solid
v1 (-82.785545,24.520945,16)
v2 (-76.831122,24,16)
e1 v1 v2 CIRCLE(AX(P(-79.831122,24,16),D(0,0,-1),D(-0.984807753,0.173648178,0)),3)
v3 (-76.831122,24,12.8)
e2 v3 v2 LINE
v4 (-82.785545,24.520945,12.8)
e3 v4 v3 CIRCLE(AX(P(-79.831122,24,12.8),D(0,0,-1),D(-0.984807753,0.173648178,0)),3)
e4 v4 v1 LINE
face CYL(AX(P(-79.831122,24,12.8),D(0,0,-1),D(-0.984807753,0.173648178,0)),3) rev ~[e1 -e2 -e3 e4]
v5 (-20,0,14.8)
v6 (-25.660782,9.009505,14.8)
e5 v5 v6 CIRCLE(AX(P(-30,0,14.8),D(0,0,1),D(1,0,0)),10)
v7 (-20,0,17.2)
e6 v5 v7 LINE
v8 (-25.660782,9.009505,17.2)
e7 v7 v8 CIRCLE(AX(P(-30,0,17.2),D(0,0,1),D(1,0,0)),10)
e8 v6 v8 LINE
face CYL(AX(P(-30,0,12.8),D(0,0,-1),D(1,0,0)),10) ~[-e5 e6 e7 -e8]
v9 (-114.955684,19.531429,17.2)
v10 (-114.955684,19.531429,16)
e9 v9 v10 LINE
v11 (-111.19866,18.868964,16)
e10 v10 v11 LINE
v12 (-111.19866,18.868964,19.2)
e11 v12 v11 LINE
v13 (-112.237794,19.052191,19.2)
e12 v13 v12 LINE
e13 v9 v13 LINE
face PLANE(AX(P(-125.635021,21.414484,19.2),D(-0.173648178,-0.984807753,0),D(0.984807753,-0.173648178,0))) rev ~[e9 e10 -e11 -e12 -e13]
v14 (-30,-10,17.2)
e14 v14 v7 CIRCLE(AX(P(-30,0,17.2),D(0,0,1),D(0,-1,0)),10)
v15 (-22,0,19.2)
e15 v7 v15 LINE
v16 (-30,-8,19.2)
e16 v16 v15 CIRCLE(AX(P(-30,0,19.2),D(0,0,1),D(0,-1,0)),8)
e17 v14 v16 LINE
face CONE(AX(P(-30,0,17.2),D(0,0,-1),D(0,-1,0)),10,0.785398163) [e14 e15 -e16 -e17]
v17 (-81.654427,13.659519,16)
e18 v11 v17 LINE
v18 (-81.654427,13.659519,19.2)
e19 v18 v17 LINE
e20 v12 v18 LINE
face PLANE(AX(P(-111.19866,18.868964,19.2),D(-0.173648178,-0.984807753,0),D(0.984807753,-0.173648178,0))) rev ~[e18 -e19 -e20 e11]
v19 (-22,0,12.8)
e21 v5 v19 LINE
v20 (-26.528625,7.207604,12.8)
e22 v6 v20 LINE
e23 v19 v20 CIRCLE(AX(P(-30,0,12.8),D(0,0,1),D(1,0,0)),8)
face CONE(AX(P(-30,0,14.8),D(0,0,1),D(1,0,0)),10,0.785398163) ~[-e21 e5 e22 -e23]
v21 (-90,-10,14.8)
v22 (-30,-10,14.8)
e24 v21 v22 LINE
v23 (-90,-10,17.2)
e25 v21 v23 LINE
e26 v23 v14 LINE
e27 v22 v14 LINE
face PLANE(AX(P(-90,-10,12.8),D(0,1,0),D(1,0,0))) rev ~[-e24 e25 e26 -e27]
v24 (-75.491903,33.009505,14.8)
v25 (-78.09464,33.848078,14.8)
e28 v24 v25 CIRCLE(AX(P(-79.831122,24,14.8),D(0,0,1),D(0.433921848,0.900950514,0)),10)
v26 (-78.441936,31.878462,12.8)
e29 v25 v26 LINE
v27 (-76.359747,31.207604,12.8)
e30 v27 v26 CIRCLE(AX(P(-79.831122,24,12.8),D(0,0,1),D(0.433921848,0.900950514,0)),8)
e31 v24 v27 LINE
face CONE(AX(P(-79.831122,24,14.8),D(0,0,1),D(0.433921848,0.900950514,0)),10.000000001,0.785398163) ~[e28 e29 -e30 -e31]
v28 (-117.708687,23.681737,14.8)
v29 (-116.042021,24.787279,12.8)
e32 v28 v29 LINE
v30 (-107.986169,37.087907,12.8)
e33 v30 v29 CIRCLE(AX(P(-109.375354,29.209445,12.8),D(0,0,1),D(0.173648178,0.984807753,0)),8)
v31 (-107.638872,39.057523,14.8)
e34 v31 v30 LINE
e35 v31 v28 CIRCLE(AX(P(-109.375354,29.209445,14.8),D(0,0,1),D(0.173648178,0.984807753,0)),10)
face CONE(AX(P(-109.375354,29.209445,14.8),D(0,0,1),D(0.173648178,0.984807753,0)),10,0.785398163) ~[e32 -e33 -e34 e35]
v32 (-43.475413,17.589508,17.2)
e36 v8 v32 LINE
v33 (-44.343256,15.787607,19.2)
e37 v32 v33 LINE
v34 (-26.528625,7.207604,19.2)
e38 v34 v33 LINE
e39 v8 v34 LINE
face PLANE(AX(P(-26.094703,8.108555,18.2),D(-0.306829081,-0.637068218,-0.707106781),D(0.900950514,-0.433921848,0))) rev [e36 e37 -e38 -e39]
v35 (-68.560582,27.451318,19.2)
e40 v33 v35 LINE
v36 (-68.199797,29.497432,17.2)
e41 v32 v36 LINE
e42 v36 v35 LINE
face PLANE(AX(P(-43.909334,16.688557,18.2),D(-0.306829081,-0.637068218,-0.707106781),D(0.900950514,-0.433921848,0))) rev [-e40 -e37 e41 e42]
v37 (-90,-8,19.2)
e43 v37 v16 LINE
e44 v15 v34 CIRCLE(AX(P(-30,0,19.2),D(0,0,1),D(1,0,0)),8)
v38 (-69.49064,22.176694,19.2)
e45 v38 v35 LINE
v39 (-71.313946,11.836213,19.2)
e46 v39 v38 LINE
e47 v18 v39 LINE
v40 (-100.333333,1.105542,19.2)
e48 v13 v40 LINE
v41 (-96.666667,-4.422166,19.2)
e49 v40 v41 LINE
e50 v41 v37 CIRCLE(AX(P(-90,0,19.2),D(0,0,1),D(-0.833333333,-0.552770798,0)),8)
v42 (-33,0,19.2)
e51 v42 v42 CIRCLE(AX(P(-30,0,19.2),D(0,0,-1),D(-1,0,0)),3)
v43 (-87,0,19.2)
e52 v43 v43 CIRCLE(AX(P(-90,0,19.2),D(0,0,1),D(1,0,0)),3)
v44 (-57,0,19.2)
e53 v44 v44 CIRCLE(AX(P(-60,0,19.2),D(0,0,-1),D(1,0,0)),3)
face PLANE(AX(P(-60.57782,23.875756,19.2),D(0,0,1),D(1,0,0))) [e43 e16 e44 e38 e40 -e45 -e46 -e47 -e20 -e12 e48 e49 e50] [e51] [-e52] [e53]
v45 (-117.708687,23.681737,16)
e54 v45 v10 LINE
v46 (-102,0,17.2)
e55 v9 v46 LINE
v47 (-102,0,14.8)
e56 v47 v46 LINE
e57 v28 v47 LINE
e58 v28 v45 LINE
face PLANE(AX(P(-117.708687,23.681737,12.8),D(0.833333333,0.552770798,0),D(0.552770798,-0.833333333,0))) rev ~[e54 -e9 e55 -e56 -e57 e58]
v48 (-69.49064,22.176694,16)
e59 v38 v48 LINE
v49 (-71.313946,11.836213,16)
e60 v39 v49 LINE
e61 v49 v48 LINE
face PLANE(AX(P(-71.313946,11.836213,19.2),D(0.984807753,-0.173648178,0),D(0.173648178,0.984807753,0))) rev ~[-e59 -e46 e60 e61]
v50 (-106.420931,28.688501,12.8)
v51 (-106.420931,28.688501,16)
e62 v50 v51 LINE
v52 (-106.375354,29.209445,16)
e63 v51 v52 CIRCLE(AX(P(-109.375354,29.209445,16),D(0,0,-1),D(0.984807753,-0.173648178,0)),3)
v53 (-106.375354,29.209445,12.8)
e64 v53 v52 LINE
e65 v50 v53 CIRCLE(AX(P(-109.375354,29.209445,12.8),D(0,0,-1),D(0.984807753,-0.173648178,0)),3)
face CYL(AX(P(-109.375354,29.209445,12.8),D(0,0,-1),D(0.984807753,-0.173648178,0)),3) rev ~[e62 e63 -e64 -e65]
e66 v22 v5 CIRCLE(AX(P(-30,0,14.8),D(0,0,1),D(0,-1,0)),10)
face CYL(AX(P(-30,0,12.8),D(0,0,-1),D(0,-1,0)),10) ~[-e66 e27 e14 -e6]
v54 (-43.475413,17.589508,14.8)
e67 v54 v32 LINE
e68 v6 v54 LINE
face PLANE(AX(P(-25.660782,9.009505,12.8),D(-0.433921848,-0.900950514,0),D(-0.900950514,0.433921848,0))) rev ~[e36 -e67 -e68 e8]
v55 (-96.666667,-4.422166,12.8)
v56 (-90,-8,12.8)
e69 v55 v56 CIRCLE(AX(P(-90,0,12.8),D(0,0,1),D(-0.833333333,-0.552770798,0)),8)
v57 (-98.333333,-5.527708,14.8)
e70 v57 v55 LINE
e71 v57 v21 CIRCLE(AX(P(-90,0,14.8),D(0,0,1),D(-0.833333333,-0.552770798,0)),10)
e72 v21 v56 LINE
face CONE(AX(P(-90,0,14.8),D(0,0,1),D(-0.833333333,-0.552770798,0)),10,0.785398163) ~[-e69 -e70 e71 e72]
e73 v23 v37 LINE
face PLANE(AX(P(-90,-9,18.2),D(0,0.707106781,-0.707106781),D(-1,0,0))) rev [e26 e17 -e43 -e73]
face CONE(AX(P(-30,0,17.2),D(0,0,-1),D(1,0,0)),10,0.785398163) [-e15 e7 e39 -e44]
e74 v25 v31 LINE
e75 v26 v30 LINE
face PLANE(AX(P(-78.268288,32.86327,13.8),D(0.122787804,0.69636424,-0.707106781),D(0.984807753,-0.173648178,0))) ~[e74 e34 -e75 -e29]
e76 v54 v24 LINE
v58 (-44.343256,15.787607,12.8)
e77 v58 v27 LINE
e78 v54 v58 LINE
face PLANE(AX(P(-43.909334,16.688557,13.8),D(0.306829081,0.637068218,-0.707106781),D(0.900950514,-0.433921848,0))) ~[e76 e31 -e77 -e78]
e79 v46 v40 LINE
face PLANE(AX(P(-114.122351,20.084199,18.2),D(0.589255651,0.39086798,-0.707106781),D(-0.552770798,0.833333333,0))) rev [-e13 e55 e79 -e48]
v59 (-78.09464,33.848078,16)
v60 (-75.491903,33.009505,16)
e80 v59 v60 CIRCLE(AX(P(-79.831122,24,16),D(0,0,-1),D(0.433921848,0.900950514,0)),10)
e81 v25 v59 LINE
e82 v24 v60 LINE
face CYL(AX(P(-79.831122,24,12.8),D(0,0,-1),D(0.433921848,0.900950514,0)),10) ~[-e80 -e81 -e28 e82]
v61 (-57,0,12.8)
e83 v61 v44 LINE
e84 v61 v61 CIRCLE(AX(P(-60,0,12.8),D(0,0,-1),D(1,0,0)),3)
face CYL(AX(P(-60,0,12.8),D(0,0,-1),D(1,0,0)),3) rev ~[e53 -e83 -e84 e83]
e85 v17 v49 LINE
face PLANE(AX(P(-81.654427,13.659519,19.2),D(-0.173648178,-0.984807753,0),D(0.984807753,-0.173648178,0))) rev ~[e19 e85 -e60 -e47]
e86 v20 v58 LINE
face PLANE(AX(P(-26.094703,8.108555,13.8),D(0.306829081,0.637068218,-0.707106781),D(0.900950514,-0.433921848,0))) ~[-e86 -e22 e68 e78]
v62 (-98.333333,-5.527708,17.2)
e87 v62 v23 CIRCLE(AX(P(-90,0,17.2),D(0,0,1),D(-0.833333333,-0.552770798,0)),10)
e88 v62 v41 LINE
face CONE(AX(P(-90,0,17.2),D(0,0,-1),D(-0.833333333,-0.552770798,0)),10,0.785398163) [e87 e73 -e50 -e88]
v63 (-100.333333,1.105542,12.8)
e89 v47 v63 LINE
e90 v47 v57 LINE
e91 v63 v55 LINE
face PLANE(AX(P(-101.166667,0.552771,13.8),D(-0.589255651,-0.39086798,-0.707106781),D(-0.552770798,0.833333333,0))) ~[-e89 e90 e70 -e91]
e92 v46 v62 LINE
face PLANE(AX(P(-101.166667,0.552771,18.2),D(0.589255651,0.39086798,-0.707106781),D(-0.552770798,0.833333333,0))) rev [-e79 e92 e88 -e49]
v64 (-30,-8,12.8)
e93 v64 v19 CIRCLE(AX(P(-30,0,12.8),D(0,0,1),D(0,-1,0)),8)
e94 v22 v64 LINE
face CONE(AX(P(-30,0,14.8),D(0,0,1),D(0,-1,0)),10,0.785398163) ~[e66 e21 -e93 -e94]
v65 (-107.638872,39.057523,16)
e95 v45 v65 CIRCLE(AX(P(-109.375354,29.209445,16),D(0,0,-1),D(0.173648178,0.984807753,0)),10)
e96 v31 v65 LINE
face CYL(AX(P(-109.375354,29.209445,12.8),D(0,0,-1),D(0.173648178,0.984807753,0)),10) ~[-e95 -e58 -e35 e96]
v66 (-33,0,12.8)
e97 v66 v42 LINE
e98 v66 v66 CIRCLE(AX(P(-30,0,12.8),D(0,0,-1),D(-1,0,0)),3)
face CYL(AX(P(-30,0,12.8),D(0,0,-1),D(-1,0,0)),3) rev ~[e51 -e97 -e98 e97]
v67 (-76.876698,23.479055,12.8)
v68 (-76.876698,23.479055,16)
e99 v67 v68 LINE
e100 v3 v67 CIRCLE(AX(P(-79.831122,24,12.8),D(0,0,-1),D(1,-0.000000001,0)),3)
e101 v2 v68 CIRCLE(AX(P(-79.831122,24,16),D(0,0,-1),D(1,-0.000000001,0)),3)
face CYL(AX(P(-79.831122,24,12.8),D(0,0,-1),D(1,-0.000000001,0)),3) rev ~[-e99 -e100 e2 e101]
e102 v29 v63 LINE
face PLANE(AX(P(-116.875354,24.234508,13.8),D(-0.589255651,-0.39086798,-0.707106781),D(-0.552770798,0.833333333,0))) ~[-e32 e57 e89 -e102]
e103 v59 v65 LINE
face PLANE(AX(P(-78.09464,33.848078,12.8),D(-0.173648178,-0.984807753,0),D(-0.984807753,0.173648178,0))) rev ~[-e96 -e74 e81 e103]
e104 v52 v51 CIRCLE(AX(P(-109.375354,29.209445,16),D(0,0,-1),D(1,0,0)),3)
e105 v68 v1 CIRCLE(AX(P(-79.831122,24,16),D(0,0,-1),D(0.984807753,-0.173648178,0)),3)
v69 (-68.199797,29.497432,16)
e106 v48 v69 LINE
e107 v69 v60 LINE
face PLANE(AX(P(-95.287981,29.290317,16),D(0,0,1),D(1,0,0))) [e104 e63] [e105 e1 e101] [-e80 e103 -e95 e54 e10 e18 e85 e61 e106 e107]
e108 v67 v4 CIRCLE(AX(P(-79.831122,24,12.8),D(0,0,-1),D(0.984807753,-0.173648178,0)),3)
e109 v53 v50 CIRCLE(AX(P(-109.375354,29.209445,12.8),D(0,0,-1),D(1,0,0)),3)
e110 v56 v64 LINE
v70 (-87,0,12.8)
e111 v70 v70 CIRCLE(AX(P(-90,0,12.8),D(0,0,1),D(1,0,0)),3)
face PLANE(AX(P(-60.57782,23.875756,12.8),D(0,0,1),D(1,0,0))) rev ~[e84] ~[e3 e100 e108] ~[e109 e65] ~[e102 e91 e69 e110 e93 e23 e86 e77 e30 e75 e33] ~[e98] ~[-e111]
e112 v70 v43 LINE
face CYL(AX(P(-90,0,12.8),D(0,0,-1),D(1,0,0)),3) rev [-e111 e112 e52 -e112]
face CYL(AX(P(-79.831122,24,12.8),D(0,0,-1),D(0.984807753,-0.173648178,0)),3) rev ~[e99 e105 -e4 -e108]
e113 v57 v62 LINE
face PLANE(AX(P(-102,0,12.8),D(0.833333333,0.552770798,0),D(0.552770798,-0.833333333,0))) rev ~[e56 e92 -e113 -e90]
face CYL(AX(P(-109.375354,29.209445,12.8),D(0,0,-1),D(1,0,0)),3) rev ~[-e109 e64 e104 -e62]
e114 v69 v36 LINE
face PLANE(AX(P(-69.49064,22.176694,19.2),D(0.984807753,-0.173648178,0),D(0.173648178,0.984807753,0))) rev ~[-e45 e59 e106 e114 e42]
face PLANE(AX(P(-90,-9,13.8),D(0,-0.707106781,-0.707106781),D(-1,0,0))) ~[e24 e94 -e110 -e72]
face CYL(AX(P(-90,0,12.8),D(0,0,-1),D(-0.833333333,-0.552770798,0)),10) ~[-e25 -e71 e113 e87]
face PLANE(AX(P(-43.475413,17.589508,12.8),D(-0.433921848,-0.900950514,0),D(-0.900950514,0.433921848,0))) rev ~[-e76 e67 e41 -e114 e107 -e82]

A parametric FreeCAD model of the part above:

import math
import FreeCAD as App
import Part
import Sketcher

V = App.Vector
Q = App.Units.Quantity


def edges_at(feature, points):
    """Names of the edges that pass closest to the given points."""
    edges = feature.Shape.Edges
    near = lambda p: min(range(len(edges)), key=lambda i: edges[i].distToShape(Part.Vertex(*p))[0])
    return sorted({f"Edge{near(p) + 1}" for p in points})


def add_polygon(sketch, points):
    """Adds a closed chain of lines whose ends are joined by coincident constraints."""
    first, n = sketch.GeometryCount, len(points)
    for a, b in zip(points, points[1:] + points[:1]):
        sketch.addGeometry(Part.LineSegment(App.Vector(*a, 0), App.Vector(*b, 0)), False)
    for i in range(n):
        sketch.addConstraint(Sketcher.Constraint("Coincident", first + i, 2, first + (i + 1) % n, 1))

doc = App.newDocument("Part")
params = doc.addObject("Spreadsheet::Sheet", "Params")
for row, (alias, value) in enumerate([
    ("sketch1_diameter", "6 mm"),
    ("sketch1_radius", "10 mm"),
    ("sketch1_width", "60 mm"),
    ("sketch1_length", "30 mm"),
    ("pad1_length", "6.4 mm"),
    ("sketch2_length", "30.000001 mm"),
    ("sketch2_length2", "10.5 mm"),
    ("pocket1_length", "3.2 mm"),
    ("chamfer_size", "2 mm"),
], start=1):
    params.set(f"A{row}", alias)
    params.set(f"B{row}", "=" + value)
    params.setAlias(f"B{row}", alias)

body = doc.addObject("PartDesign::Body", "Body")

# Sketch on XY plane
sketch1 = body.newObject("Sketcher::SketchObject", "Sketch")
sketch1.AttachmentSupport = (doc.getObject("XY_Plane"), [""])
sketch1.MapMode = "FlatFace"
sketch1.addGeometry([
    Part.LineSegment(V(-25.7, 9, 0), V(-43.5, 17.6, 0)),  # 0
    Part.LineSegment(V(-43.5, 17.6, 0), V(-75.5, 33, 0)),  # 1
    Part.ArcOfCircle(Part.Circle(V(-79.8, 24, 0), V(0, 0, 1), 10), math.radians(64.28), math.radians(80)),  # 2
    Part.LineSegment(V(-78.1, 33.8, 0), V(-107.6, 39.1, 0)),  # 3
    Part.ArcOfCircle(Part.Circle(V(-109.4, 29.2, 0), V(0, 0, 1), 10), math.radians(80), math.radians(214)),  # 4
    Part.LineSegment(V(-117.7, 23.7, 0), V(-102, 0, 0)),  # 5
    Part.LineSegment(V(-102, 0, 0), V(-98.3, -5.5, 0)),  # 6
    Part.ArcOfCircle(Part.Circle(V(-90, 0, 0), V(0, 0, 1), 10), math.radians(-146), math.radians(-90)),  # 7
    Part.LineSegment(V(-90, -10, 0), V(-30, -10, 0)),  # 8
    Part.ArcOfCircle(Part.Circle(V(-30, 0, 0), V(0, 0, 1), 10), math.radians(-90), math.radians(0)),  # 9
    Part.ArcOfCircle(Part.Circle(V(-30, 0, 0), V(0, 0, 1), 10), math.radians(0), math.radians(64)),  # 10
    Part.Circle(V(-30, 0, 0), V(0, 0, 1), 3),  # 11
    Part.Circle(V(-90, 0, 0), V(0, 0, 1), 3),  # 12
    Part.Circle(V(-60, 0, 0), V(0, 0, 1), 3),  # 13
    Part.ArcOfCircle(Part.Circle(V(-109.4, 29.2, 0), V(0, 0, 1), 3), math.radians(0), math.radians(350)),  # 14
    Part.ArcOfCircle(Part.Circle(V(-109.4, 29.2, 0), V(0, 0, 1), 3), math.radians(-10), math.radians(0)),  # 15
    Part.ArcOfCircle(Part.Circle(V(-79.8, 24, 0), V(0, 0, 1), 3), math.radians(0), math.radians(170)),  # 16
    Part.ArcOfCircle(Part.Circle(V(-79.8, 24, 0), V(0, 0, 1), 3), math.radians(-10), math.radians(0)),  # 17
    Part.ArcOfCircle(Part.Circle(V(-79.8, 24, 0), V(0, 0, 1), 3), math.radians(170), math.radians(350)),  # 18
], False)
sketch1.addConstraint([
    Sketcher.Constraint("Coincident", 0, 2, 1, 1),
    Sketcher.Constraint("Tangent", 1, 2, 2, 1),
    Sketcher.Constraint("Tangent", 2, 2, 3, 1),
    Sketcher.Constraint("Tangent", 3, 2, 4, 1),
    Sketcher.Constraint("Tangent", 4, 2, 5, 1),
    Sketcher.Constraint("Coincident", 5, 2, 6, 1),
    Sketcher.Constraint("Tangent", 6, 2, 7, 1),
    Sketcher.Constraint("Tangent", 7, 2, 8, 1),
    Sketcher.Constraint("Tangent", 8, 2, 9, 1),
    Sketcher.Constraint("Tangent", 9, 2, 10, 1),
    Sketcher.Constraint("Tangent", 10, 2, 0, 1),
    Sketcher.Constraint("Tangent", 14, 1, 15, 2),
    Sketcher.Constraint("Coincident", 15, 1, 14, 2),
    Sketcher.Constraint("Tangent", 16, 1, 17, 2),
    Sketcher.Constraint("Tangent", 17, 1, 18, 2),
    Sketcher.Constraint("Tangent", 18, 1, 16, 2),
    Sketcher.Constraint("Horizontal", 8),
    Sketcher.Constraint("Coincident", 11, 3, 9, 3),
    Sketcher.Constraint("Coincident", 12, 3, 7, 3),
    Sketcher.Constraint("Coincident", 14, 3, 4, 3),
    Sketcher.Constraint("Coincident", 16, 3, 2, 3),
    Sketcher.Constraint("Equal", 2, 4),
    Sketcher.Constraint("Equal", 4, 7),
    Sketcher.Constraint("Equal", 7, 9),
    Sketcher.Constraint("Equal", 9, 10),
    Sketcher.Constraint("Equal", 11, 12),
    Sketcher.Constraint("Equal", 12, 13),
    Sketcher.Constraint("Equal", 13, 14),
    Sketcher.Constraint("Equal", 15, 16),
    Sketcher.Constraint("PointOnObject", 7, 3, -1),
    Sketcher.Constraint("PointOnObject", 13, 3, -1),
    Sketcher.Constraint("PointOnObject", 5, 2, -1),
    Sketcher.Constraint("PointOnObject", 9, 2, -1),
    Sketcher.Constraint("Parallel", 0, 1),
    Sketcher.Constraint("Parallel", 5, 6),
    Sketcher.Constraint("Horizontal", 15, 3, 14, 1),
    Sketcher.Constraint("Horizontal", 18, 3, 16, 1),
    Sketcher.Constraint("Diameter", 11, Q("6 mm")),
    Sketcher.Constraint("Radius", 2, Q("10 mm")),
    Sketcher.Constraint("DistanceX", 8, 1, 8, 2, Q("60 mm")),
    Sketcher.Constraint("Angle", 3, Q("170 deg")),
    Sketcher.Constraint("Distance", 3, Q("30 mm")),
    Sketcher.Constraint("DistanceY", -1, 1, 2, 3, Q("24 mm")),
    Sketcher.Constraint("DistanceX", 7, 3, -1, 1, Q("90 mm")),
    Sketcher.Constraint("DistanceX", 13, 3, -1, 1, Q("60 mm")),
    Sketcher.Constraint("DistanceX", 5, 2, -1, 1, Q("102 mm")),
    Sketcher.Constraint("DistanceY", -1, 1, 15, 1, Q("28.688501 mm")),
    Sketcher.Constraint("DistanceX", 17, 1, -1, 1, Q("76.876698 mm")),
    Sketcher.Constraint("Distance", 0, Q("19.773152 mm")),
    Sketcher.Constraint("DistanceX", 18, 1, -1, 1, Q("82.785545 mm")),
])
sketch1.setExpression("Constraints[37]", "Params.sketch1_diameter")
sketch1.setExpression("Constraints[38]", "Params.sketch1_radius")
sketch1.setExpression("Constraints[39]", "Params.sketch1_width")
sketch1.setExpression("Constraints[41]", "Params.sketch1_length")
pad1 = body.newObject("PartDesign::Pad", "Pad")
pad1.Profile = sketch1
pad1.setExpression("Length", "Params.pad1_length")

# Sketch on XY plane
sketch2 = body.newObject("Sketcher::SketchObject", "Sketch001")
sketch2.AttachmentSupport = (doc.getObject("XY_Plane"), [""])
sketch2.MapMode = "FlatFace"
sketch2.AttachmentOffset = App.Placement(V(0, 0, 6.4), App.Rotation())
add_polygon(sketch2, [(-69, 22), (-67, 35), (-122, 45), (-126, 21), (-111, 19), (-82, 14), (-71, 12)])  # lines 0-6
sketch2.addConstraint([
    Sketcher.Constraint("Perpendicular", 0, 1),
    Sketcher.Constraint("Perpendicular", 1, 2),
    Sketcher.Constraint("Perpendicular", 2, 3),
    Sketcher.Constraint("Parallel", 3, 4),
    Sketcher.Constraint("Parallel", 4, 5),
    Sketcher.Constraint("Perpendicular", 5, 6),
    Sketcher.Constraint("Equal", 5, 6),
    Sketcher.Constraint("Angle", 0, Q("80 deg")),
    Sketcher.Constraint("Distance", 4, Q("30.000001 mm")),
    Sketcher.Constraint("Distance", 5, Q("10.5 mm")),
    Sketcher.Constraint("DistanceX", 0, 2, -1, 1, Q("67.19798 mm")),
    Sketcher.Constraint("DistanceX", 2, 2, -1, 1, Q("125.635021 mm")),
    Sketcher.Constraint("DistanceX", 3, 2, -1, 1, Q("111.19866 mm")),
    Sketcher.Constraint("DistanceY", -1, 1, 4, 2, Q("13.659519 mm")),
])
sketch2.setExpression("Constraints[15]", "Params.sketch2_length")
sketch2.setExpression("Constraints[16]", "Params.sketch2_length2")
pocket1 = body.newObject("PartDesign::Pocket", "Pocket")
pocket1.Profile = sketch2
pocket1.setExpression("Length", "Params.pocket1_length")
doc.recompute()

chamfer = body.newObject("PartDesign::Chamfer", "Chamfer")
chamfer.Base = (pocket1, edges_at(pocket1, [(-59.484, 25.3, 0), (-55.838, 23.543, 6.4)]))
chamfer.setExpression("Size", "Params.chamfer_size")
body2 = doc.addObject("PartDesign::Body", "Body001")
doc.recompute()

mirroring = doc.addObject("Part::Mirroring", "Mirroring")
mirroring.Source = body
mirroring.Base = V(-64.963985, 5.2847, 6.4)
mirroring.Normal = V(0, 0, 1)
body2.BaseFeature = mirroring
doc.recompute()
body3 = doc.addObject("PartDesign::Body", "Body002")
doc.recompute()

mirroring2 = doc.addObject("Part::Mirroring", "Mirroring001")
mirroring2.Source = body2
mirroring2.Base = V(-73.367736, 11.21261, 12.8)
mirroring2.Normal = V(0, 0, 1)
body3.BaseFeature = mirroring2
doc.recompute()
body.Visibility = False
body2.Visibility = False
mirroring.Visibility = False
mirroring2.Visibility = False

doc.recompute()
